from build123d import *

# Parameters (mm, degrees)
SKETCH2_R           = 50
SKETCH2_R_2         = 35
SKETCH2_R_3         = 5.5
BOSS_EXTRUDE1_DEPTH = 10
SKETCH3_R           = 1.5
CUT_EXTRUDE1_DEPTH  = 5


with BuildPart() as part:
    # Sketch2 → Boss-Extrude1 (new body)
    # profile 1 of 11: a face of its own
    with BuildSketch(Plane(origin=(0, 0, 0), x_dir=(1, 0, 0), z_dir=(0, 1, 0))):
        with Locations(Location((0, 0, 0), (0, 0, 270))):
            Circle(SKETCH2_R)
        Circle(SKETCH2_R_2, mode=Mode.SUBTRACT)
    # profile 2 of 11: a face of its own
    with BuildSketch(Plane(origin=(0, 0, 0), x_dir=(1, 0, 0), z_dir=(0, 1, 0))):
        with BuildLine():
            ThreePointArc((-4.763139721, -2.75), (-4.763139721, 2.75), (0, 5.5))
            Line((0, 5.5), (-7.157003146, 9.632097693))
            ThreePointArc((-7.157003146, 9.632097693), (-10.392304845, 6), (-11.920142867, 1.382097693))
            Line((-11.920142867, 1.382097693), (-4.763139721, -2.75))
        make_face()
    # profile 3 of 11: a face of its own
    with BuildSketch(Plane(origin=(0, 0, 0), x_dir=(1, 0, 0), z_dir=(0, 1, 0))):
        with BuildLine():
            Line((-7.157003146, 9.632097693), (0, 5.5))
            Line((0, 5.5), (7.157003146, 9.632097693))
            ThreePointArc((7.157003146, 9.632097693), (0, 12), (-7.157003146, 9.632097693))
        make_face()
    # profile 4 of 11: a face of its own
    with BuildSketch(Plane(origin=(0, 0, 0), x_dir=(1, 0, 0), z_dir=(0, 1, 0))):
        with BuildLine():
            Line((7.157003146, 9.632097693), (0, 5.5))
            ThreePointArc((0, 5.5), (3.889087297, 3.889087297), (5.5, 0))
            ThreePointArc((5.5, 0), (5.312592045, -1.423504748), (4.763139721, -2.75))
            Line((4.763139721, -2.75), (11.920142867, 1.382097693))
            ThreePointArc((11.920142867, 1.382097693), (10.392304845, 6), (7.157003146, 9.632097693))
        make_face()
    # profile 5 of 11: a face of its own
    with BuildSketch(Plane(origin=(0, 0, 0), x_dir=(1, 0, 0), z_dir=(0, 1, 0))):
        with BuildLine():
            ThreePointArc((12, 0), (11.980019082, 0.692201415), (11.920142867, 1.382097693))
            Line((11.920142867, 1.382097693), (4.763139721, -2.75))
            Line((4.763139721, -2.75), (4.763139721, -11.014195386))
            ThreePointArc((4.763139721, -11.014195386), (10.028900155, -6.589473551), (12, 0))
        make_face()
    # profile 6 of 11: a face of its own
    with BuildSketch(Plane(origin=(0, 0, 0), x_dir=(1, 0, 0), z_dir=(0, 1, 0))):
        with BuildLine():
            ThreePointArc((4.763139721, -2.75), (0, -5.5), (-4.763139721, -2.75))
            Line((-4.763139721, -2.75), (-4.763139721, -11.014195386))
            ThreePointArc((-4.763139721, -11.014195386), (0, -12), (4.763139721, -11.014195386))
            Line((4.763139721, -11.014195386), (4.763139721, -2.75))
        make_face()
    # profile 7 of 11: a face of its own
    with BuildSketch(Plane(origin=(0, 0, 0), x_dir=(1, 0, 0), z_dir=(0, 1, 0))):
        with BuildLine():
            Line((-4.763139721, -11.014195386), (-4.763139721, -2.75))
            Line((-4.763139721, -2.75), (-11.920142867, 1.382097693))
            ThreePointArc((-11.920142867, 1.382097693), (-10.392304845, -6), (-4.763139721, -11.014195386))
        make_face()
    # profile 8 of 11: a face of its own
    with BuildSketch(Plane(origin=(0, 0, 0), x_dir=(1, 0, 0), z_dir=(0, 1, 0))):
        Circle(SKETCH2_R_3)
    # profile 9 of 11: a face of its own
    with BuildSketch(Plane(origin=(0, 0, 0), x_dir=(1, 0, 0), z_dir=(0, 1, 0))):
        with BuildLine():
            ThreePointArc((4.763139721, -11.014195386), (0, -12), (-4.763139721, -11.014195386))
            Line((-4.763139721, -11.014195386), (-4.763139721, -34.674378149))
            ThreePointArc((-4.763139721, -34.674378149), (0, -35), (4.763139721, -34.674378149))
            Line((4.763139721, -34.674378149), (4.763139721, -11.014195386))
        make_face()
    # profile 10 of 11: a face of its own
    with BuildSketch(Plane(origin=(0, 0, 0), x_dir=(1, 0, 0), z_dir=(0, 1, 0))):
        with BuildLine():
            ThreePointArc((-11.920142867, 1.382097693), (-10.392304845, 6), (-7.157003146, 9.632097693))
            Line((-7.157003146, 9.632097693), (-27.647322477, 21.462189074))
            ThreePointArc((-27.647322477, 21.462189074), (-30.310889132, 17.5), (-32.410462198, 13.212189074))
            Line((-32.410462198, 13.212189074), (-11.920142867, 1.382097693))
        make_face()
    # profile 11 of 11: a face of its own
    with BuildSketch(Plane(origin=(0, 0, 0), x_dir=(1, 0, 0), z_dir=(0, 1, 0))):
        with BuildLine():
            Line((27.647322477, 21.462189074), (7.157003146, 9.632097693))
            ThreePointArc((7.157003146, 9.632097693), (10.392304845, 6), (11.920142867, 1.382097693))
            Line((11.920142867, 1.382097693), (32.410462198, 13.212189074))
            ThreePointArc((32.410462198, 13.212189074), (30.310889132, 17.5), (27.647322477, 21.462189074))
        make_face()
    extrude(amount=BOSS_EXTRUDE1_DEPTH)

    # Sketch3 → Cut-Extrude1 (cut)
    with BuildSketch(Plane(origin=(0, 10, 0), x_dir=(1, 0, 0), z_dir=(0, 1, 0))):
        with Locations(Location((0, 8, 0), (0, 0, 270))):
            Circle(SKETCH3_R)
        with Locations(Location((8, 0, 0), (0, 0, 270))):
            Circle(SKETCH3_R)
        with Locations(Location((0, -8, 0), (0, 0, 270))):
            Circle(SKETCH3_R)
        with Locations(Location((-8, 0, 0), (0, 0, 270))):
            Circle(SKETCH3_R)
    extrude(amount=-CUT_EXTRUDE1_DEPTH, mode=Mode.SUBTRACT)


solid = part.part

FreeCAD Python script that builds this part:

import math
import FreeCAD as App
import Part
import Sketcher

V = App.Vector
Q = App.Units.Quantity

doc = App.newDocument("Part")
body = doc.addObject("PartDesign::Body", "Body")

# Sketch on XZ plane
sketch1 = body.newObject("Sketcher::SketchObject", "Sketch")
sketch1.AttachmentSupport = (doc.getObject("XZ_Plane"), [""])
sketch1.MapMode = "FlatFace"
sketch1.addGeometry(Part.Circle(V(0, 0, 0), V(0, 0, 1), 50), False)
sketch1.addGeometry(Part.ArcOfCircle(Part.Circle(V(0, 0, 0), V(0, 0, 1), 35), math.radians(-22), math.radians(82)), False)
sketch1.addGeometry(Part.LineSegment(V(4.8, 34.7, 0), V(4.8, 11, 0)), False)
sketch1.addGeometry(Part.ArcOfCircle(Part.Circle(V(0, 0, 0), V(0, 0, 1), 12), math.radians(0), math.radians(67)), False)
sketch1.addGeometry(Part.ArcOfCircle(Part.Circle(V(0, 0, 0), V(0, 0, 1), 12), math.radians(-6.61), math.radians(0)), False)
sketch1.addGeometry(Part.LineSegment(V(11.9, -1.4, 0), V(32.4, -13.2, 0)), False)
sketch1.addGeometry(Part.ArcOfCircle(Part.Circle(V(0, 0, 0), V(0, 0, 1), 35), math.radians(-142), math.radians(-38)), False)
sketch1.addGeometry(Part.LineSegment(V(27.6, -21.5, 0), V(7.2, -9.6, 0)), False)
sketch1.addGeometry(Part.ArcOfCircle(Part.Circle(V(0, 0, 0), V(0, 0, 1), 12), math.radians(-127), math.radians(-53)), False)
sketch1.addGeometry(Part.LineSegment(V(-7.2, -9.6, 0), V(-27.6, -21.5, 0)), False)
sketch1.addGeometry(Part.ArcOfCircle(Part.Circle(V(0, 0, 0), V(0, 0, 1), 35), math.radians(98), math.radians(202)), False)
sketch1.addGeometry(Part.LineSegment(V(-32.4, -13.2, 0), V(-11.9, -1.4, 0)), False)
sketch1.addGeometry(Part.ArcOfCircle(Part.Circle(V(0, 0, 0), V(0, 0, 1), 12), math.radians(113), math.radians(187)), False)
sketch1.addGeometry(Part.LineSegment(V(-4.8, 11, 0), V(-4.8, 34.7, 0)), False)
sketch1.addConstraint(Sketcher.Constraint("Coincident", 1, 2, 2, 1))
sketch1.addConstraint(Sketcher.Constraint("Coincident", 2, 2, 3, 2))
sketch1.addConstraint(Sketcher.Constraint("Tangent", 3, 1, 4, 2))
sketch1.addConstraint(Sketcher.Constraint("Coincident", 4, 1, 5, 1))
sketch1.addConstraint(Sketcher.Constraint("Coincident", 5, 2, 1, 1))
sketch1.addConstraint(Sketcher.Constraint("Coincident", 6, 2, 7, 1))
sketch1.addConstraint(Sketcher.Constraint("Coincident", 7, 2, 8, 2))
sketch1.addConstraint(Sketcher.Constraint("Coincident", 8, 1, 9, 1))
sketch1.addConstraint(Sketcher.Constraint("Coincident", 9, 2, 6, 1))
sketch1.addConstraint(Sketcher.Constraint("Coincident", 10, 2, 11, 1))
sketch1.addConstraint(Sketcher.Constraint("Coincident", 11, 2, 12, 2))
sketch1.addConstraint(Sketcher.Constraint("Coincident", 12, 1, 13, 1))
sketch1.addConstraint(Sketcher.Constraint("Coincident", 13, 2, 10, 1))
sketch1.addConstraint(Sketcher.Constraint("Vertical", 2))
sketch1.addConstraint(Sketcher.Constraint("Vertical", 13))
sketch1.addConstraint(Sketcher.Constraint("Coincident", 0, 3, -1, 1))
sketch1.addConstraint(Sketcher.Constraint("Coincident", 1, 3, -1, 1))
sketch1.addConstraint(Sketcher.Constraint("Coincident", 3, 3, -1, 1))
sketch1.addConstraint(Sketcher.Constraint("Coincident", 6, 3, -1, 1))
sketch1.addConstraint(Sketcher.Constraint("Coincident", 8, 3, -1, 1))
sketch1.addConstraint(Sketcher.Constraint("Coincident", 10, 3, -1, 1))
sketch1.addConstraint(Sketcher.Constraint("Coincident", 12, 3, -1, 1))
sketch1.addConstraint(Sketcher.Constraint("Equal", 3, 4))
sketch1.addConstraint(Sketcher.Constraint("Equal", 1, 6))
sketch1.addConstraint(Sketcher.Constraint("Equal", 4, 8))
sketch1.addConstraint(Sketcher.Constraint("Equal", 6, 10))
sketch1.addConstraint(Sketcher.Constraint("Equal", 8, 12))
sketch1.addConstraint(Sketcher.Constraint("PointOnObject", 3, 1, -1))
sketch1.addConstraint(Sketcher.Constraint("Parallel", 5, 7))
sketch1.addConstraint(Sketcher.Constraint("Parallel", 9, 11))
sketch1.addConstraint(Sketcher.Constraint("Horizontal", 7, 2, 8, 1))
sketch1.addConstraint(Sketcher.Constraint("Horizontal", 6, 2, 9, 2))
sketch1.addConstraint(Sketcher.Constraint("Horizontal", 5, 2, 10, 2))
sketch1.addConstraint(Sketcher.Constraint("Horizontal", 2, 2, 12, 1))
sketch1.addConstraint(Sketcher.Constraint("Equal", 5, 7))
sketch1.addConstraint(Sketcher.Constraint("Diameter", 0, 100.0))
sketch1.addConstraint(Sketcher.Constraint("Radius", 1, 35.0))
sketch1.addConstraint(Sketcher.Constraint("Radius", 3, 12.0))
sketch1.addConstraint(Sketcher.Constraint("Angle", 5, Q("-30 deg")))
sketch1.addConstraint(Sketcher.Constraint("DistanceY", 6, 2, 5, 2, 8.25))
sketch1.addConstraint(Sketcher.Constraint("DistanceY", 2, 2, 2, 1, 23.660183))
pad1 = body.newObject("PartDesign::Pad", "Pad")
pad1.Profile = sketch1
pad1.Length = 10
pad1.Reversed = True

# Sketch on XZ plane
sketch2 = body.newObject("Sketcher::SketchObject", "Sketch001")
sketch2.AttachmentSupport = (doc.getObject("XZ_Plane"), [""])
sketch2.MapMode = "FlatFace"
sketch2.AttachmentOffset = App.Placement(V(0, 0, -10), App.Rotation())
sketch2.addGeometry(Part.Circle(V(0, -8, 0), V(0, 0, 1), 1.5), False)
sketch2.addGeometry(Part.Circle(V(8, 0, 0), V(0, 0, 1), 1.5), False)
sketch2.addGeometry(Part.Circle(V(0, 8, 0), V(0, 0, 1), 1.5), False)
sketch2.addGeometry(Part.Circle(V(-8, 0, 0), V(0, 0, 1), 1.5), False)
sketch2.addConstraint(Sketcher.Constraint("Equal", 0, 1))
sketch2.addConstraint(Sketcher.Constraint("Equal", 1, 2))
sketch2.addConstraint(Sketcher.Constraint("Equal", 2, 3))
sketch2.addConstraint(Sketcher.Constraint("Symmetric", 0, 3, 2, 3, -1, 1))
sketch2.addConstraint(Sketcher.Constraint("Symmetric", 1, 3, 3, 3, -1, 1))
sketch2.addConstraint(Sketcher.Constraint("PointOnObject", 0, 3, -2))
sketch2.addConstraint(Sketcher.Constraint("PointOnObject", 1, 3, -1))
sketch2.addConstraint(Sketcher.Constraint("Diameter", 0, 3.0))
sketch2.addConstraint(Sketcher.Constraint("DistanceY", 0, 3, -1, 1, 8.0))
sketch2.addConstraint(Sketcher.Constraint("DistanceX", -1, 1, 1, 3, 8.0))
pocket1 = body.newObject("PartDesign::Pocket", "Pocket")
pocket1.Profile = sketch2
pocket1.Length = 5
pocket1.Reversed = True

doc.recompute()
